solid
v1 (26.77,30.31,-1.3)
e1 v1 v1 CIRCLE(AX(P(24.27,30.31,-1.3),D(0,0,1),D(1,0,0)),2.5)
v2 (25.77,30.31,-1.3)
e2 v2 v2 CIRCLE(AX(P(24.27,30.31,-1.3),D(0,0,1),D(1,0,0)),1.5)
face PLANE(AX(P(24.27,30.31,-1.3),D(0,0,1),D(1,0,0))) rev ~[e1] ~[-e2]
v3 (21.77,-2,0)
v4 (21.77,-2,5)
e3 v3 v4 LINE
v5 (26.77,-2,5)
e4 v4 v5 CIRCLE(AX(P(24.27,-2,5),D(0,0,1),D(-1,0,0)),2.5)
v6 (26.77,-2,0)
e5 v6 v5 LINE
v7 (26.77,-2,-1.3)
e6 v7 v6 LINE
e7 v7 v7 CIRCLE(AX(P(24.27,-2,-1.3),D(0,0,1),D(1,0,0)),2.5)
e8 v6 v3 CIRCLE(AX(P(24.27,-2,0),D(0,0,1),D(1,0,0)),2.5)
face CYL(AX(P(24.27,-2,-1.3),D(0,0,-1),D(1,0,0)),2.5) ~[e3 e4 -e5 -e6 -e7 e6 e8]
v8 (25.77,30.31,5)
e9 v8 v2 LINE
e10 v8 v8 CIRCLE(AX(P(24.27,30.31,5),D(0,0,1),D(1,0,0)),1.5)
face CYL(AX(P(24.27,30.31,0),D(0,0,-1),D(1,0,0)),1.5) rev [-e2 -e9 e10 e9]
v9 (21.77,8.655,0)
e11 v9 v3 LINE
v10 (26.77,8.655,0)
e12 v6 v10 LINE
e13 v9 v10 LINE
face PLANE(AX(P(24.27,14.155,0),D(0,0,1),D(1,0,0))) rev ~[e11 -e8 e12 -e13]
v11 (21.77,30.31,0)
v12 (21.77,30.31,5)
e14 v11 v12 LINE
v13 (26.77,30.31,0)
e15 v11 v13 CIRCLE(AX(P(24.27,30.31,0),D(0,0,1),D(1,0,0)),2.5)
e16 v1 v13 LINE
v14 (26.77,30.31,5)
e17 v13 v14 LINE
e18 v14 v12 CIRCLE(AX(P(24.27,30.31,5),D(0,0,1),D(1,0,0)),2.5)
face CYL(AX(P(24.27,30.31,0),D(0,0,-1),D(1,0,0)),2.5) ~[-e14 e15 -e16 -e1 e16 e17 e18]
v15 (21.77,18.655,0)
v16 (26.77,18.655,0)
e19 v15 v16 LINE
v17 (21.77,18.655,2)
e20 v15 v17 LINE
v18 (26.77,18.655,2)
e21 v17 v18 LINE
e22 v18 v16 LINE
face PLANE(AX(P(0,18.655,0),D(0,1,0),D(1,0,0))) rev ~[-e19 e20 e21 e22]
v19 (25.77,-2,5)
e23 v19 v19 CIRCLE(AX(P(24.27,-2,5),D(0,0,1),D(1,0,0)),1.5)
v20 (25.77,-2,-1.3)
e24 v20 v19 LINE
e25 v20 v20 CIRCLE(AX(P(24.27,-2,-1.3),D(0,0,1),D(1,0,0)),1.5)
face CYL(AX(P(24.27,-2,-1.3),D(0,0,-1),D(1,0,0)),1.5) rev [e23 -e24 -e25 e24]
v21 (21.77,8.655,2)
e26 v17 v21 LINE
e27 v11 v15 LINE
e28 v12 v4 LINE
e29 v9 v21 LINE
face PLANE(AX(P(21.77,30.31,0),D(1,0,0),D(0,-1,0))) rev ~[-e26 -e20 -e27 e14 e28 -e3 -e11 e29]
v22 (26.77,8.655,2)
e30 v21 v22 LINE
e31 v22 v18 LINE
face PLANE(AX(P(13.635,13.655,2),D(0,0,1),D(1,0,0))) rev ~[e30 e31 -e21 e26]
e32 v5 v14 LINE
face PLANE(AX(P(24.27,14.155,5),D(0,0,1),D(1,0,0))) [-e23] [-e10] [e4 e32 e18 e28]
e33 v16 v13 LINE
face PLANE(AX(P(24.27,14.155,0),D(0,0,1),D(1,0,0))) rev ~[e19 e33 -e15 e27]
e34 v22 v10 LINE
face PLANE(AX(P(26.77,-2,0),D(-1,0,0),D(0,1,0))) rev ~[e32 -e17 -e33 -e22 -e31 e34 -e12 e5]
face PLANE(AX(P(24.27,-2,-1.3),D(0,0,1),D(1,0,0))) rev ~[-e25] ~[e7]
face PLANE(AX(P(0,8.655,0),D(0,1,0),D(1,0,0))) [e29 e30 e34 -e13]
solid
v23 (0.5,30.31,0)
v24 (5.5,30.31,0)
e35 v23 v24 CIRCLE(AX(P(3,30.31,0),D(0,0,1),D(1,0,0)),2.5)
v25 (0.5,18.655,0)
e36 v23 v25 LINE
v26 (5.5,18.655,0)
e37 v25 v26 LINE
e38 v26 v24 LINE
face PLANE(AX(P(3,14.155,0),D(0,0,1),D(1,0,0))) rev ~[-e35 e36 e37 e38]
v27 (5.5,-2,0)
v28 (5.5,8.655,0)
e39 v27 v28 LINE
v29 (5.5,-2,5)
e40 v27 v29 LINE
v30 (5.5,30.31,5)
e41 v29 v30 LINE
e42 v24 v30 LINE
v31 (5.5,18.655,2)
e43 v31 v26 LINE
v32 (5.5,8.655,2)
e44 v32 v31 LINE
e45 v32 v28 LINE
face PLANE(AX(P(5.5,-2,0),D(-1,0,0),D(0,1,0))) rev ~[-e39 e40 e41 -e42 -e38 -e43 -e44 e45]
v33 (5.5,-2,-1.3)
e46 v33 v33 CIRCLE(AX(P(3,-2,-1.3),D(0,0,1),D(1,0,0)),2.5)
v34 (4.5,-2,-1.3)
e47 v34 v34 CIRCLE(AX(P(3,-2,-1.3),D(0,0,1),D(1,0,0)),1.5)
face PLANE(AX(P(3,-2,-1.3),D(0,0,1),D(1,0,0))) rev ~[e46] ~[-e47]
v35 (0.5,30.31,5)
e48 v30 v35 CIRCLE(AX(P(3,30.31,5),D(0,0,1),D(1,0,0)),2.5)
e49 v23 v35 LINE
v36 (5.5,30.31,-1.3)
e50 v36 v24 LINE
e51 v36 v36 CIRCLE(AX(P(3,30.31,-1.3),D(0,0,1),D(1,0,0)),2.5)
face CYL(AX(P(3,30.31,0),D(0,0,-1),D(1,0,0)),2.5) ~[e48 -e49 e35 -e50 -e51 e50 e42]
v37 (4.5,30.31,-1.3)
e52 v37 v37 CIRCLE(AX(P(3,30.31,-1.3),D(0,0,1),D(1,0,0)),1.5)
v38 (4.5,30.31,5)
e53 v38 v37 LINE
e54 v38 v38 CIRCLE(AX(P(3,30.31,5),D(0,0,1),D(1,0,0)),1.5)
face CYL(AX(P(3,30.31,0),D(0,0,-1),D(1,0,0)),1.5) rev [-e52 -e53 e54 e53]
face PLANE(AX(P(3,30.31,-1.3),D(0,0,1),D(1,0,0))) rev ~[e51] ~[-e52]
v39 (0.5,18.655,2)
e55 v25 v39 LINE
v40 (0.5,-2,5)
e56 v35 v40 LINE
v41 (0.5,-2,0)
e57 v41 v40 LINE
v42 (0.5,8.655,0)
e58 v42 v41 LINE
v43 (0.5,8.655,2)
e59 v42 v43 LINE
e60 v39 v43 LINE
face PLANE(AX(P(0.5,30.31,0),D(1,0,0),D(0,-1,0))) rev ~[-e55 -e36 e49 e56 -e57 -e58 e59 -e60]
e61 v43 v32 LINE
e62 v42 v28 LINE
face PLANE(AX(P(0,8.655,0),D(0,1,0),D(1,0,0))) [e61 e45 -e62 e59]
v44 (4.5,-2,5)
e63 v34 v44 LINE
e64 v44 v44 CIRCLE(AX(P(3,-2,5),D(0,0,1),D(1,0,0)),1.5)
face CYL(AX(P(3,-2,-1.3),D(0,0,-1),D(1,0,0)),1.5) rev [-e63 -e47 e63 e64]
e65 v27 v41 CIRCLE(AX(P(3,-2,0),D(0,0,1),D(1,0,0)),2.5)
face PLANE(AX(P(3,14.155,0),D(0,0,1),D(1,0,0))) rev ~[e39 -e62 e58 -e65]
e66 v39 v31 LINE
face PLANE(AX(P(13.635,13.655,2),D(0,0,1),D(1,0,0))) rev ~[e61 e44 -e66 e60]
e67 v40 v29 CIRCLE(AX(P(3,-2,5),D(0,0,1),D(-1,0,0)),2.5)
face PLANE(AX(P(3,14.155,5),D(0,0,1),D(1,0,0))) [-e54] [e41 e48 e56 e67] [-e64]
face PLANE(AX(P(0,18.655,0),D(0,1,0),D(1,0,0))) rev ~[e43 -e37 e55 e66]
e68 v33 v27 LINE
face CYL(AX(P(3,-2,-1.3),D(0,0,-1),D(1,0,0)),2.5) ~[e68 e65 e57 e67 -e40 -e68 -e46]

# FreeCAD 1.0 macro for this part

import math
import FreeCAD as App
import Part
import Sketcher

V = App.Vector
Q = App.Units.Quantity

doc = App.newDocument("Part")
body = doc.addObject("PartDesign::Body", "Body")
body.AllowCompound = True

sketch1 = body.newObject("Sketcher::SketchObject", "Sketch")
sketch1.AttachmentSupport = (doc.getObject("XY_Plane"), [""])
sketch1.MapMode = "FlatFace"
sketch1.addGeometry([
    Part.Circle(V(3, 30.31, 0), V(0, 0, 1), 2.5),
    Part.Circle(V(3, 30.31, 0), V(0, 0, 1), 1.5),
    Part.Circle(V(24.27, 30.31, 0), V(0, 0, 1), 2.5),
    Part.Circle(V(24.27, 30.31, 0), V(0, 0, 1), 1.5),
    Part.Circle(V(3, -2, 0), V(0, 0, 1), 2.5),
    Part.Circle(V(3, -2, 0), V(0, 0, 1), 1.5),
    Part.Circle(V(24.27, -2, 0), V(0, 0, 1), 2.5),
    Part.Circle(V(24.27, -2, 0), V(0, 0, 1), 1.5),
], False)
sketch1.addConstraint([
    Sketcher.Constraint("Coincident", 1, 3, 0, 3),
    Sketcher.Constraint("Coincident", 3, 3, 2, 3),
    Sketcher.Constraint("Coincident", 5, 3, 4, 3),
    Sketcher.Constraint("Coincident", 7, 3, 6, 3),
    Sketcher.Constraint("Equal", 0, 2),
    Sketcher.Constraint("Equal", 1, 3),
    Sketcher.Constraint("Equal", 2, 4),
    Sketcher.Constraint("Equal", 3, 5),
    Sketcher.Constraint("Equal", 4, 6),
    Sketcher.Constraint("Equal", 5, 7),
    Sketcher.Constraint("Horizontal", 1, 3, 2, 3),
    Sketcher.Constraint("Horizontal", 5, 3, 6, 3),
    Sketcher.Constraint("Vertical", 1, 3, 4, 3),
    Sketcher.Constraint("Vertical", 3, 3, 6, 3),
    Sketcher.Constraint("Diameter", 0, Q("5 mm")),
    Sketcher.Constraint("Diameter", 1, Q("3 mm")),
    Sketcher.Constraint("DistanceX", -1, 1, 0, 3, Q("3 mm")),
    Sketcher.Constraint("DistanceY", 4, 3, -1, 1, Q("2 mm")),
    Sketcher.Constraint("DistanceY", -1, 1, 0, 3, Q("30.31 mm")),
    Sketcher.Constraint("DistanceX", -1, 1, 2, 3, Q("24.27 mm")),
])
pad1 = body.newObject("PartDesign::Pad", "Pad")
pad1.Profile = sketch1
pad1.Length = 1.3
body2 = doc.addObject("PartDesign::Body", "Body001")
body2.AllowCompound = True
doc.recompute()

body.Placement = App.Placement(V(0, 0, -1.3), App.Rotation(V(0, 0, 1), 0))
boolean = body2.newObject("PartDesign::Boolean", "Boolean")
boolean.Type = "Fuse"
boolean.addObjects([body])
body3 = doc.addObject("PartDesign::Body", "Body002")

sketch2 = body3.newObject("Sketcher::SketchObject", "Sketch001")
sketch2.AttachmentSupport = (doc.getObject("XY_Plane002"), [""])
sketch2.MapMode = "FlatFace"
sketch2.addGeometry([
    Part.LineSegment(V(0, 18.655, 0), V(0, 8.655, 0)),
    Part.LineSegment(V(0, 8.655, 0), V(27.27, 8.655, 0)),
    Part.LineSegment(V(27.27, 8.655, 0), V(27.27, 18.655, 0)),
    Part.LineSegment(V(27.27, 18.655, 0), V(0, 18.655, 0)),
], False)
sketch2.addConstraint([
    Sketcher.Constraint("Coincident", 0, 2, 1, 1),
    Sketcher.Constraint("Coincident", 1, 2, 2, 1),
    Sketcher.Constraint("Coincident", 2, 2, 3, 1),
    Sketcher.Constraint("Coincident", 3, 2, 0, 1),
    Sketcher.Constraint("Vertical", 0),
    Sketcher.Constraint("Horizontal", 1),
    Sketcher.Constraint("Vertical", 2),
    Sketcher.Constraint("Horizontal", 3),
    Sketcher.Constraint("PointOnObject", 0, 2, -2),
    Sketcher.Constraint("DistanceY", 0, 2, 0, 1, Q("10 mm")),
    Sketcher.Constraint("DistanceX", 1, 1, 1, 2, Q("27.27 mm")),
    Sketcher.Constraint("DistanceY", -1, 1, 0, 2, Q("8.655 mm")),
])
pad2 = body3.newObject("PartDesign::Pad", "Pad001")
pad2.Profile = sketch2
pad2.Length = 2
body4 = doc.addObject("PartDesign::Body", "Body003")
body4.AllowCompound = True

sketch3 = body4.newObject("Sketcher::SketchObject", "Sketch002")
sketch3.AttachmentSupport = (doc.getObject("XY_Plane003"), [""])
sketch3.MapMode = "FlatFace"
sketch3.addGeometry([
    Part.ArcOfCircle(Part.Circle(V(3, 30.31, 0), V(0, 0, 1), 2.5), math.radians(0), math.radians(180)),
    Part.LineSegment(V(0.5, 30.31, 0), V(0.5, -2, 0)),
    Part.ArcOfCircle(Part.Circle(V(3, -2, 0), V(0, 0, 1), 2.5), math.radians(180), math.radians(360)),
    Part.LineSegment(V(5.5, -2, 0), V(5.5, 30.31, 0)),
    Part.Circle(V(3, -2, 0), V(0, 0, 1), 1.5),
    Part.Circle(V(3, 30.31, 0), V(0, 0, 1), 1.5),
    Part.ArcOfCircle(Part.Circle(V(24.27, 30.31, 0), V(0, 0, 1), 2.5), math.radians(0), math.radians(180)),
    Part.LineSegment(V(21.77, 30.31, 0), V(21.77, -2, 0)),
    Part.ArcOfCircle(Part.Circle(V(24.27, -2, 0), V(0, 0, 1), 2.5), math.radians(180), math.radians(360)),
    Part.LineSegment(V(26.77, -2, 0), V(26.77, 30.31, 0)),
    Part.Circle(V(24.27, -2, 0), V(0, 0, 1), 1.5),
    Part.Circle(V(24.27, 30.31, 0), V(0, 0, 1), 1.5),
], False)
sketch3.addConstraint([
    Sketcher.Constraint("Tangent", 0, 2, 1, 1),
    Sketcher.Constraint("Tangent", 1, 2, 2, 1),
    Sketcher.Constraint("Tangent", 2, 2, 3, 1),
    Sketcher.Constraint("Tangent", 3, 2, 0, 1),
    Sketcher.Constraint("Tangent", 6, 2, 7, 1),
    Sketcher.Constraint("Tangent", 7, 2, 8, 1),
    Sketcher.Constraint("Tangent", 8, 2, 9, 1),
    Sketcher.Constraint("Tangent", 9, 2, 6, 1),
    Sketcher.Constraint("Vertical", 1),
    Sketcher.Constraint("Vertical", 3),
    Sketcher.Constraint("Vertical", 7),
    Sketcher.Constraint("Vertical", 9),
    Sketcher.Constraint("Coincident", 4, 3, 2, 3),
    Sketcher.Constraint("Coincident", 5, 3, 0, 3),
    Sketcher.Constraint("Coincident", 10, 3, 8, 3),
    Sketcher.Constraint("Coincident", 11, 3, 6, 3),
    Sketcher.Constraint("Equal", 4, 5),
    Sketcher.Constraint("Equal", 2, 6),
    Sketcher.Constraint("Equal", 5, 10),
    Sketcher.Constraint("Equal", 10, 11),
    Sketcher.Constraint("Horizontal", 5, 3, 6, 3),
    Sketcher.Constraint("Horizontal", 4, 3, 8, 3),
    Sketcher.Constraint("Diameter", 4, Q("3 mm")),
    Sketcher.Constraint("Radius", 0, Q("2.5 mm")),
    Sketcher.Constraint("DistanceX", -1, 1, 0, 3, Q("3 mm")),
    Sketcher.Constraint("DistanceY", 2, 3, -1, 1, Q("2 mm")),
    Sketcher.Constraint("DistanceY", 1, 2, 1, 1, Q("32.31 mm")),
    Sketcher.Constraint("DistanceX", -1, 1, 6, 3, Q("24.27 mm")),
])
pad3 = body4.newObject("PartDesign::Pad", "Pad002")
pad3.Profile = sketch3
pad3.Length = 5
doc.recompute()

boolean2 = body4.newObject("PartDesign::Boolean", "Boolean001")
boolean2.Type = "Cut"
boolean2.addObjects([body3])
doc.recompute()

boolean3 = body4.newObject("PartDesign::Boolean", "Boolean002")
boolean3.Type = "Fuse"
boolean3.addObjects([body2])

doc.recompute()
